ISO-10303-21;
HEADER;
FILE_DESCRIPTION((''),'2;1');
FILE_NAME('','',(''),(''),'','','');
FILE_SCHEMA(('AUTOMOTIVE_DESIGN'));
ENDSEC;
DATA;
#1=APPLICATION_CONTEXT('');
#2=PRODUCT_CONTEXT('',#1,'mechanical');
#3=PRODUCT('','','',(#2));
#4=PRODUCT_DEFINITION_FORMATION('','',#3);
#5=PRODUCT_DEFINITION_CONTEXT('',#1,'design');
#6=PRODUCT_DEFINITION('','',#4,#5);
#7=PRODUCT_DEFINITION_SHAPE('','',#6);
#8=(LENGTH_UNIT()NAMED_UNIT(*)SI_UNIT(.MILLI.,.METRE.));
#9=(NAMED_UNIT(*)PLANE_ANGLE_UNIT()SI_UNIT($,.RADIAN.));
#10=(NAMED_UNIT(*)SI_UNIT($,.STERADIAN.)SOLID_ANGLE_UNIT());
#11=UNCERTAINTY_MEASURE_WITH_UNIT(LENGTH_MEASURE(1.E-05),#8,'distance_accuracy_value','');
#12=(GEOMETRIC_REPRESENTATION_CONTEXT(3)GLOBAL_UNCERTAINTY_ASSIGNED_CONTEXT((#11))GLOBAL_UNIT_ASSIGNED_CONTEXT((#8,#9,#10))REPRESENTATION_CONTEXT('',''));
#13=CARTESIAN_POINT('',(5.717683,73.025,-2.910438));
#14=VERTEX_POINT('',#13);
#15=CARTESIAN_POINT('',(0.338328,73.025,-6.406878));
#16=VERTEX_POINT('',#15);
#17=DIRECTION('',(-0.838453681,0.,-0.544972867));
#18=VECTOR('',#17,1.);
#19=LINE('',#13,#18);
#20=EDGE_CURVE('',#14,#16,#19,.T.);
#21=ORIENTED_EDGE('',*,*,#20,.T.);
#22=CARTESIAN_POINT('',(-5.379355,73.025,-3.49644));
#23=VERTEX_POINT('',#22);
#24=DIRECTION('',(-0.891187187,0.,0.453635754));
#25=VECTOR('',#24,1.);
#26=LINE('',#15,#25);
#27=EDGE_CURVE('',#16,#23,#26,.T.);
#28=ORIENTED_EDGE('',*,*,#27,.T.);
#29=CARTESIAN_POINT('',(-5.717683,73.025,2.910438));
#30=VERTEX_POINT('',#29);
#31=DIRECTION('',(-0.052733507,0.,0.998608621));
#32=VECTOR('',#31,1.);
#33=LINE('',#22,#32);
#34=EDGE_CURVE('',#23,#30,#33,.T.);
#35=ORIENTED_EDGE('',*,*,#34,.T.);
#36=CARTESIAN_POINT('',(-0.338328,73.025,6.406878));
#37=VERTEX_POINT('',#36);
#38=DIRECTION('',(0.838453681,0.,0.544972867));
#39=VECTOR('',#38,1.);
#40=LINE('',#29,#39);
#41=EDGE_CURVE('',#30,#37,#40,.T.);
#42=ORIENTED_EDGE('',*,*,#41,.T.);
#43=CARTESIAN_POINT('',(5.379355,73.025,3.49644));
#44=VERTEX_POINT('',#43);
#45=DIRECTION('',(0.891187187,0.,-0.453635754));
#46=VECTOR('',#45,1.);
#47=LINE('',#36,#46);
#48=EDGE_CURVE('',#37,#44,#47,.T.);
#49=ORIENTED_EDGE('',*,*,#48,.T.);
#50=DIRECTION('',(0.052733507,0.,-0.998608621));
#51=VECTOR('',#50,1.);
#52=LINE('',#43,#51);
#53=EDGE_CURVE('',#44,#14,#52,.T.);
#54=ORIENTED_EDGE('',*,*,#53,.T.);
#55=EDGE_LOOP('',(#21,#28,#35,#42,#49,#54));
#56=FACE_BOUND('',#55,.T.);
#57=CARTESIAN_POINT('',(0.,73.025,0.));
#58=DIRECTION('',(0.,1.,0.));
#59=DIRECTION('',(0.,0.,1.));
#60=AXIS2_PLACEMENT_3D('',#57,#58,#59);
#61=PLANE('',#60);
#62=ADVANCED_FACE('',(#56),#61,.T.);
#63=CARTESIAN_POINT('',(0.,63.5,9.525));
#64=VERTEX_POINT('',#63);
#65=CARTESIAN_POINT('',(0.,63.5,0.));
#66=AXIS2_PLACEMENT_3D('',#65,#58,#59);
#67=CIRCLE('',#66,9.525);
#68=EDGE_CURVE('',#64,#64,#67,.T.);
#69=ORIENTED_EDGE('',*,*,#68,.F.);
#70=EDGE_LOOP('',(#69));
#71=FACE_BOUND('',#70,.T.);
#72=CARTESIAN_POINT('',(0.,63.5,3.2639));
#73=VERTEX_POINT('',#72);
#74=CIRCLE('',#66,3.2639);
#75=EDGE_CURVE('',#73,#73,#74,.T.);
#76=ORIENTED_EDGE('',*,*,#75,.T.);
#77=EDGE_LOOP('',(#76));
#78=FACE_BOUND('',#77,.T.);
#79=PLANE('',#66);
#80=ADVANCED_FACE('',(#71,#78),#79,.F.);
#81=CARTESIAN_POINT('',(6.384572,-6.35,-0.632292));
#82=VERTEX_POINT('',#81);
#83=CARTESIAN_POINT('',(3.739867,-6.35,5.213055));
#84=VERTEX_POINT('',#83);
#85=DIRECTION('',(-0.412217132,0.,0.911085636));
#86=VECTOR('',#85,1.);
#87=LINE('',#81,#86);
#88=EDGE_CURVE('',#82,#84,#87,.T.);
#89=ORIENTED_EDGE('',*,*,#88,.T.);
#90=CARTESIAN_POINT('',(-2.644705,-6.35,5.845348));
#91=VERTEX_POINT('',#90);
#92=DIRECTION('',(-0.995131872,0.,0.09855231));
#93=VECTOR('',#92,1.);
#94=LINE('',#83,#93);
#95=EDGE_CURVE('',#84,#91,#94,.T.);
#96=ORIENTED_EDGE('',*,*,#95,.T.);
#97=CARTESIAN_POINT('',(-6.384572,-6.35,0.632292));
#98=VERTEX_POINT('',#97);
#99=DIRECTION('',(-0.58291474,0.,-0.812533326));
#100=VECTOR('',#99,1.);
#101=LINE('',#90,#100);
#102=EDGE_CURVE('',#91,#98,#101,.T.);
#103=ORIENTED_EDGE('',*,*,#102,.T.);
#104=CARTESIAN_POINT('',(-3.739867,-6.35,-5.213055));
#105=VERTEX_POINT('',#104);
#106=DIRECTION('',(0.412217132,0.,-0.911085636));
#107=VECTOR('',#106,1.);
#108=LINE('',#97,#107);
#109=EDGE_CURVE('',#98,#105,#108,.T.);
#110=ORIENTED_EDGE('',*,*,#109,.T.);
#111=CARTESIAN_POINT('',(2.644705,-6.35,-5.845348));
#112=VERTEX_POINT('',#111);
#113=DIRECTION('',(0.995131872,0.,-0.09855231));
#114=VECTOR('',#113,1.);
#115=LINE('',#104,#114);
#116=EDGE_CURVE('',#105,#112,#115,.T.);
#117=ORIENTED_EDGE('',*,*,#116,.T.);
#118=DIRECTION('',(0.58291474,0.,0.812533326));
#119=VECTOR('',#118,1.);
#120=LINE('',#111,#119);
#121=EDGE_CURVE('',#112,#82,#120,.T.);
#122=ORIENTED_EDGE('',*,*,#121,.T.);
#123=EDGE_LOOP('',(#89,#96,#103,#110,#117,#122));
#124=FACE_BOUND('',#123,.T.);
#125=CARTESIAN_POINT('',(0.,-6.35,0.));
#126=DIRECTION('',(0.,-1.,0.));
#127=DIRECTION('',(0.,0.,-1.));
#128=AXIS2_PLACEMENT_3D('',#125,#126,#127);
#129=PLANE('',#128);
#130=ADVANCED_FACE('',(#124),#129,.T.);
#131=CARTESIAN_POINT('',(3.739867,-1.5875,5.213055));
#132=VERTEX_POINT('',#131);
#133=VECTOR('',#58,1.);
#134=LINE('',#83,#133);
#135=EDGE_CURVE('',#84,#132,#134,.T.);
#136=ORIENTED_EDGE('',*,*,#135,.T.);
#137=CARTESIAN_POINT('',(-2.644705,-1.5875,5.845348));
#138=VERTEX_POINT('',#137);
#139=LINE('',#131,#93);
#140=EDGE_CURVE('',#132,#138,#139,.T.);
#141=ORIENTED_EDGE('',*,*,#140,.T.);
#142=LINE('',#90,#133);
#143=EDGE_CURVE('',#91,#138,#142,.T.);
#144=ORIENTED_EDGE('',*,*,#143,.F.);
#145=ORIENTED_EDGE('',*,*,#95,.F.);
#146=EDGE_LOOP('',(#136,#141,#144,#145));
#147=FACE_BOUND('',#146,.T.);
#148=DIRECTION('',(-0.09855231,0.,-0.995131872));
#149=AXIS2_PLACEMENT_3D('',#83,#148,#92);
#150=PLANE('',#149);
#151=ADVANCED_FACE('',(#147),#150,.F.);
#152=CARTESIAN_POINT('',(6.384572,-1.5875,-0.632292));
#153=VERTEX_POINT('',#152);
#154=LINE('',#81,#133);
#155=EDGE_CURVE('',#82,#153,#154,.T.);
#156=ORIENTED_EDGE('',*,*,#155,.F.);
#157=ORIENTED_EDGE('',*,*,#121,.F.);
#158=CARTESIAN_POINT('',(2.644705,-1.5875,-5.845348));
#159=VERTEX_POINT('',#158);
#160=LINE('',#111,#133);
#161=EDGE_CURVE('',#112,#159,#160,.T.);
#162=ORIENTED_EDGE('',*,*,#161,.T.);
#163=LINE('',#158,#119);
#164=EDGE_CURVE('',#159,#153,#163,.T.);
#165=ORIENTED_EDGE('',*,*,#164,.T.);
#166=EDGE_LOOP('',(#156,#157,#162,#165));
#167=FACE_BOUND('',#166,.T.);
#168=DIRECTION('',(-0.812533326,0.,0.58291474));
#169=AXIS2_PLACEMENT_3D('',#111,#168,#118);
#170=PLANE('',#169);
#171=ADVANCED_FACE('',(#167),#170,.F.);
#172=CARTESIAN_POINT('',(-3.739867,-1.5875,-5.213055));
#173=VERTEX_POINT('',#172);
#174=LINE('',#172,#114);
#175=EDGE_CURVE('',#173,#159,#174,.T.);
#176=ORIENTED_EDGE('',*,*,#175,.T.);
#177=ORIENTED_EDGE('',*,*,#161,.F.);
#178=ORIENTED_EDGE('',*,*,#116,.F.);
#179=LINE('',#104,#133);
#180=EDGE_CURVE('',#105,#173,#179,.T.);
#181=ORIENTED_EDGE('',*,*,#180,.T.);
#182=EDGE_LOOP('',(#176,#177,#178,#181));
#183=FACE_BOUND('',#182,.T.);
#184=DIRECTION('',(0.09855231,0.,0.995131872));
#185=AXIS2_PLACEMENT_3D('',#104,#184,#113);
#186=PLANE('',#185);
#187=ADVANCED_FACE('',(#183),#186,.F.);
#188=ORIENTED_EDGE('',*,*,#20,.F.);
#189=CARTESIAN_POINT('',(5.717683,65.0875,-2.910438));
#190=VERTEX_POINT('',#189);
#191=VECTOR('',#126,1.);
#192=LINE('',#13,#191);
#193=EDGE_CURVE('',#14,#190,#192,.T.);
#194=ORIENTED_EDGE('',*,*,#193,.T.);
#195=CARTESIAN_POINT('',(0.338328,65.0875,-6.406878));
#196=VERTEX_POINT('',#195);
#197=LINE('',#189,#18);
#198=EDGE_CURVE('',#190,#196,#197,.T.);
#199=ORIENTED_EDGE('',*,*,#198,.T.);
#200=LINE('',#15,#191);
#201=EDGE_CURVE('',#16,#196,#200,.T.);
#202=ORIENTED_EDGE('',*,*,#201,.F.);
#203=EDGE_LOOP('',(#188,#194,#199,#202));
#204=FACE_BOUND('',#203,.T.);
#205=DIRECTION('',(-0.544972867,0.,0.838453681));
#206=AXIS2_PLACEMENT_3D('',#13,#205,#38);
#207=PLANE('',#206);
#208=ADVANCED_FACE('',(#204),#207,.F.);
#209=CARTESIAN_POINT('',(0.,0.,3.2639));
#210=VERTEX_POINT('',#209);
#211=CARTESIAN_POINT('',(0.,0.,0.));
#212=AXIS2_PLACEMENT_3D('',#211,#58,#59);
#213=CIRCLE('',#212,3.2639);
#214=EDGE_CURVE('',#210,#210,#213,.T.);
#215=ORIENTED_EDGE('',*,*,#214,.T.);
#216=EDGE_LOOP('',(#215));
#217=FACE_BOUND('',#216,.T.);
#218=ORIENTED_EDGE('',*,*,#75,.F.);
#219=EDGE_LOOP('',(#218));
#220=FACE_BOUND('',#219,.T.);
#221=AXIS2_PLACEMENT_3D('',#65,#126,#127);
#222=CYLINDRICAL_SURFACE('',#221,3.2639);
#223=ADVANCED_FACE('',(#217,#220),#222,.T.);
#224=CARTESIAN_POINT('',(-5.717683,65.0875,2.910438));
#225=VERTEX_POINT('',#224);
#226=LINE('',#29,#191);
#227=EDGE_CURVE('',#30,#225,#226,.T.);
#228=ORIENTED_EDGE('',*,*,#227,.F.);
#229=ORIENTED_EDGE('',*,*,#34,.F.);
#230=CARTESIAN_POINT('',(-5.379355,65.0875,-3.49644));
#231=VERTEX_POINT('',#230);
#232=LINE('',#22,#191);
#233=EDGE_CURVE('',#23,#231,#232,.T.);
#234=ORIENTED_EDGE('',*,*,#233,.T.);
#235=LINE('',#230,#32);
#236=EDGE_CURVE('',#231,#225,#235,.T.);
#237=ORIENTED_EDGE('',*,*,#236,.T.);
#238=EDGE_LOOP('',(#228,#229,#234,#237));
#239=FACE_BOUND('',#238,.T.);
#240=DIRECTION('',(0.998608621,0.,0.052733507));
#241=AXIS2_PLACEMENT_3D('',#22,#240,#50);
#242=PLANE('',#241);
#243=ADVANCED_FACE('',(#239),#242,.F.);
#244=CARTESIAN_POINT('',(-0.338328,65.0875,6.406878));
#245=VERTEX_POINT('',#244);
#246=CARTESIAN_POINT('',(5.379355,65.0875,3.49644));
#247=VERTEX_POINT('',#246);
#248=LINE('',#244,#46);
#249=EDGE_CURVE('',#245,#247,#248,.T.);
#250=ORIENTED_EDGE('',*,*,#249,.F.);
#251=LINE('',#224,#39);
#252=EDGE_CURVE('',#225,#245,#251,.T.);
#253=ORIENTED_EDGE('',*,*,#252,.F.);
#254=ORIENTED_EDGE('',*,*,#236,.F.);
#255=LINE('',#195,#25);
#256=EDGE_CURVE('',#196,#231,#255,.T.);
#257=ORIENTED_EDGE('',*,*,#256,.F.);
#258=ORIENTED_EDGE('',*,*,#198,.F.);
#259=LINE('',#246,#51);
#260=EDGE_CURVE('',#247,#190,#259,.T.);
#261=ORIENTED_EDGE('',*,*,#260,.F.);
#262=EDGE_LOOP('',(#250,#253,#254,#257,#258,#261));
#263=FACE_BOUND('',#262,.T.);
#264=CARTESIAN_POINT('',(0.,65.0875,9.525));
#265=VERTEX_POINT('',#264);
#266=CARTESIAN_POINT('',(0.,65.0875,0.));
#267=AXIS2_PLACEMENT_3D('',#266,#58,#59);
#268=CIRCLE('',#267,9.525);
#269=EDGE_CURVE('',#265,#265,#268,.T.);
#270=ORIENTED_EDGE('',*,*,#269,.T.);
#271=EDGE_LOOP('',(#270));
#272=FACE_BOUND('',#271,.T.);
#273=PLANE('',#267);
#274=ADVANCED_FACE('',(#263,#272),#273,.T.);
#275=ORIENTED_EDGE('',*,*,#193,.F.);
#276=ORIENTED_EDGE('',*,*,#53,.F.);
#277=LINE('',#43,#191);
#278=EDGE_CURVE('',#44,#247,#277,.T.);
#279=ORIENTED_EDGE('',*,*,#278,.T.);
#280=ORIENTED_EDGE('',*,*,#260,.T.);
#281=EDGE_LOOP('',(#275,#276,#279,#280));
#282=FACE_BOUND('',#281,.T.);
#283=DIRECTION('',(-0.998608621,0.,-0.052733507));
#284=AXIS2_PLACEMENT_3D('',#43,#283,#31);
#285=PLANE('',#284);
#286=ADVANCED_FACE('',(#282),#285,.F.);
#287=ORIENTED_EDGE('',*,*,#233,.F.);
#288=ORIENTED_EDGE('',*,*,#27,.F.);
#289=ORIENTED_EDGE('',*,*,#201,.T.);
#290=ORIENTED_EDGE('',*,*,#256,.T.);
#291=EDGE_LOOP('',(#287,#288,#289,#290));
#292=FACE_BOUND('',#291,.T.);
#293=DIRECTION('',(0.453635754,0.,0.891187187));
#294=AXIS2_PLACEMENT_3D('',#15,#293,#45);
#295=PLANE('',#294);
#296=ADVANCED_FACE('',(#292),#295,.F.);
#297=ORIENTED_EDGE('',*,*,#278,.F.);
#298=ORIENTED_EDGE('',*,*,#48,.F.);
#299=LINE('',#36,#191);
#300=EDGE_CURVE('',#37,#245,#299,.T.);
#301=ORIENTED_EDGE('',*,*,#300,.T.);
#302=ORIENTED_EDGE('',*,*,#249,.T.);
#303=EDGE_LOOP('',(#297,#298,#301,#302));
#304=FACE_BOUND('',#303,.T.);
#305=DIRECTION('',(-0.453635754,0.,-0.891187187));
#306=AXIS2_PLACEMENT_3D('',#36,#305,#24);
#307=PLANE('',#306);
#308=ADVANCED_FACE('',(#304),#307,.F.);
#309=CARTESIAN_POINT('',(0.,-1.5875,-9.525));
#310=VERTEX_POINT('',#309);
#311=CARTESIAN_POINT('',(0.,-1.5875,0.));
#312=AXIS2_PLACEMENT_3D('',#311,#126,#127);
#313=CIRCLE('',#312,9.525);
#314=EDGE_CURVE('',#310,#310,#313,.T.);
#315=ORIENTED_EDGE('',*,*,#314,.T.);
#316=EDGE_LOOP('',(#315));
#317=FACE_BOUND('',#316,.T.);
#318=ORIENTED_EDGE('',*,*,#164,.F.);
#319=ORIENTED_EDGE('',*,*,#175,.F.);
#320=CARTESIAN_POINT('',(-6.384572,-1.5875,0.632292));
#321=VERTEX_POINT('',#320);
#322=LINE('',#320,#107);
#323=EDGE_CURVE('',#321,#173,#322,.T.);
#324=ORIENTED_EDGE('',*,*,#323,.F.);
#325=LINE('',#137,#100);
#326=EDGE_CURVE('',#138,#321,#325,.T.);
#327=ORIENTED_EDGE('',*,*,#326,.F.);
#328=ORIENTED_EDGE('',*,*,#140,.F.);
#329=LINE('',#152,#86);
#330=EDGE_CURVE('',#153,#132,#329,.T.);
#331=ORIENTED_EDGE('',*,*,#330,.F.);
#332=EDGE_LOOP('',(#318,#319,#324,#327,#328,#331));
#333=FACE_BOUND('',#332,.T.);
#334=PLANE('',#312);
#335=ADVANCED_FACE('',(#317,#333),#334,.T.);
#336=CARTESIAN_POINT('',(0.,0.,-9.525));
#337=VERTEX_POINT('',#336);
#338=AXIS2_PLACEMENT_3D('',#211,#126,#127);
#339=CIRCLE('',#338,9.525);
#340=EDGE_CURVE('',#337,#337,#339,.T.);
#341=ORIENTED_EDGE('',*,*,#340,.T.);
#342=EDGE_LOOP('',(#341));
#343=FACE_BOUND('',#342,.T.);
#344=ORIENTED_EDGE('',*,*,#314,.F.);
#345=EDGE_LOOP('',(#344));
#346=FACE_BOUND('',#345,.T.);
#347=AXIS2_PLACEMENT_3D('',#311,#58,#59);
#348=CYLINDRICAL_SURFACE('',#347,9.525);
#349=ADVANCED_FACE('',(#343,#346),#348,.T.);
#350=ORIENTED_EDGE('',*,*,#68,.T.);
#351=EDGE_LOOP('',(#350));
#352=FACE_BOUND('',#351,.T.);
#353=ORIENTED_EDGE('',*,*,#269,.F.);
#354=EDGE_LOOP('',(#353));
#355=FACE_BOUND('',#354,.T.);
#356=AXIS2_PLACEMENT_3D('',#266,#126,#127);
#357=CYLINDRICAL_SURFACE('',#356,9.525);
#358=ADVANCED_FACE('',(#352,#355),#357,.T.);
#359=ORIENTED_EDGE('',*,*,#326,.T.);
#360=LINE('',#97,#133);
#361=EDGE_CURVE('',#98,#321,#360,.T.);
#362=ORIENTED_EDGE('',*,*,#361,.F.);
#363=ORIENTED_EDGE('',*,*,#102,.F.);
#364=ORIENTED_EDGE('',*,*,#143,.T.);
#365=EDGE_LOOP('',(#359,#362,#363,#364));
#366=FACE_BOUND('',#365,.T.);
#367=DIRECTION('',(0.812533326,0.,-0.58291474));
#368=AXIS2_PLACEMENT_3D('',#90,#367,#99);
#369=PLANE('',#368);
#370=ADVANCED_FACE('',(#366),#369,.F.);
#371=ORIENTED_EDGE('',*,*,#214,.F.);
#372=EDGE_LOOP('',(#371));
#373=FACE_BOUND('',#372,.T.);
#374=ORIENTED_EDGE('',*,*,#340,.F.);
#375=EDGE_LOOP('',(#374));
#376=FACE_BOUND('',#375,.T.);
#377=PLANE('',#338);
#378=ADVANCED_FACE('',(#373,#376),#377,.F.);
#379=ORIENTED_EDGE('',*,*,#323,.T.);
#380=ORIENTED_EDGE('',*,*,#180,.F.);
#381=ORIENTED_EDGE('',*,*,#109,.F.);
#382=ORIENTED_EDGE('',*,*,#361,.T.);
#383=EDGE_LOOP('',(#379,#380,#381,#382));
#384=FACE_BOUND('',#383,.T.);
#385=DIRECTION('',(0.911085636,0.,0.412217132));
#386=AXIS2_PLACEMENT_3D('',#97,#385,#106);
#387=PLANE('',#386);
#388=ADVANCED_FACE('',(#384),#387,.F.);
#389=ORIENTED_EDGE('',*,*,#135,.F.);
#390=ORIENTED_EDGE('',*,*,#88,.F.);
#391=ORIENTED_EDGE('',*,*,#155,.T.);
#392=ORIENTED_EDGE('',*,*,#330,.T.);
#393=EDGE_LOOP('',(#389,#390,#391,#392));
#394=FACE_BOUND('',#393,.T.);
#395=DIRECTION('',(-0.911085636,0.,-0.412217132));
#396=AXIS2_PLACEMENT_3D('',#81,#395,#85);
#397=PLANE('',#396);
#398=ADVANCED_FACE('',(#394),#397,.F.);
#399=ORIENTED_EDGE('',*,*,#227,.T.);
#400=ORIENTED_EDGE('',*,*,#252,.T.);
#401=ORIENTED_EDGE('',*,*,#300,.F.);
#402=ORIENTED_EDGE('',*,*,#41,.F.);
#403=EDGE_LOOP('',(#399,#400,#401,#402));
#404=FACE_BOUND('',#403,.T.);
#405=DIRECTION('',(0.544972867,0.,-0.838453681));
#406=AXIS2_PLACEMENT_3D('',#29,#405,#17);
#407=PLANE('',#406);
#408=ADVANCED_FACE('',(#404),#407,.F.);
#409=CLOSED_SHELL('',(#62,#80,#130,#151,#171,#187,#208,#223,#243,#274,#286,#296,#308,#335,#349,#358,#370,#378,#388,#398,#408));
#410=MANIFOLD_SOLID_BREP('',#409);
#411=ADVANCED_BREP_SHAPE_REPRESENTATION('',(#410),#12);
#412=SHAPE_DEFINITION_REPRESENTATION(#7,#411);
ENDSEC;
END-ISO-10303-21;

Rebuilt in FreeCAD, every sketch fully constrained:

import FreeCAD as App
import Part
import Sketcher
from FreeCAD import Vector
Q = App.Units.Quantity

doc = App.newDocument("Part")
body = doc.addObject("PartDesign::Body", "Body")

# Sketch on XZ plane
sketch1 = body.newObject("Sketcher::SketchObject", "Sketch")
sketch1.AttachmentSupport = (doc.getObject("XZ_Plane"), [""])
sketch1.MapMode = "FlatFace"
sketch1.addGeometry(Part.Circle(Vector(0, 0, 0), Vector(0, 0, 1), 3.3), False)
sketch1.addConstraint(Sketcher.Constraint("Coincident", 0, 3, -1, 1))
sketch1.addConstraint(Sketcher.Constraint("Diameter", 0, Q("0.257 in")))
pad1 = body.newObject("PartDesign::Pad", "Pad")
pad1.Profile = sketch1
pad1.Length = Q("2.5 in")
pad1.Reversed = True

# Sketch on XZ plane
sketch2 = body.newObject("Sketcher::SketchObject", "Sketch001")
sketch2.AttachmentSupport = (doc.getObject("XZ_Plane"), [""])
sketch2.MapMode = "FlatFace"
sketch2.AttachmentOffset = App.Placement(Vector(0, 0, -2.5 * 25.4), App.Rotation())
sketch2.addGeometry(Part.Circle(Vector(0, 0, 0), Vector(0, 0, 1), 10), False)
sketch2.addConstraint(Sketcher.Constraint("Coincident", 0, 3, -1, 1))
sketch2.addConstraint(Sketcher.Constraint("Diameter", 0, Q("0.75 in")))
pad2 = body.newObject("PartDesign::Pad", "Pad001")
pad2.Profile = sketch2
pad2.Length = Q("0.0625 in")
pad2.Reversed = True

# Sketch on XZ plane
sketch3 = body.newObject("Sketcher::SketchObject", "Sketch002")
sketch3.AttachmentSupport = (doc.getObject("XZ_Plane"), [""])
sketch3.MapMode = "FlatFace"
sketch3.AttachmentOffset = App.Placement(Vector(0, 0, 0.0625 * 25.4), App.Rotation())
sketch3.addGeometry(Part.Circle(Vector(0, 0, 0), Vector(0, 0, 1), 10), False)
sketch3.addConstraint(Sketcher.Constraint("Coincident", 0, 3, -1, 1))
sketch3.addConstraint(Sketcher.Constraint("Diameter", 0, Q("0.75 in")))
pad3 = body.newObject("PartDesign::Pad", "Pad002")
pad3.Profile = sketch3
pad3.Length = Q("0.0625 in")
pad3.Reversed = True

# Sketch on XZ plane
sketch4 = body.newObject("Sketcher::SketchObject", "Sketch003")
sketch4.AttachmentSupport = (doc.getObject("XZ_Plane"), [""])
sketch4.MapMode = "FlatFace"
sketch4.AttachmentOffset = App.Placement(Vector(0, 0, 0.0625 * 25.4), App.Rotation())
sketch4.addGeometry(Part.LineSegment(Vector(4, 5, 0), Vector(-3, 6, 0)), False)
sketch4.addGeometry(Part.LineSegment(Vector(-3, 6, 0), Vector(-6, 1, 0)), False)
sketch4.addGeometry(Part.LineSegment(Vector(-6, 1, 0), Vector(-4, -5, 0)), False)
sketch4.addGeometry(Part.LineSegment(Vector(-4, -5, 0), Vector(3, -6, 0)), False)
sketch4.addGeometry(Part.LineSegment(Vector(3, -6, 0), Vector(6, -1, 0)), False)
sketch4.addGeometry(Part.LineSegment(Vector(6, -1, 0), Vector(4, 5, 0)), False)
sketch4.addConstraint(Sketcher.Constraint("Coincident", 0, 2, 1, 1))
sketch4.addConstraint(Sketcher.Constraint("Coincident", 1, 2, 2, 1))
sketch4.addConstraint(Sketcher.Constraint("Coincident", 2, 2, 3, 1))
sketch4.addConstraint(Sketcher.Constraint("Coincident", 3, 2, 4, 1))
sketch4.addConstraint(Sketcher.Constraint("Coincident", 4, 2, 5, 1))
sketch4.addConstraint(Sketcher.Constraint("Coincident", 5, 2, 0, 1))
sketch4.addConstraint(Sketcher.Constraint("Symmetric", 0, 2, 3, 2, -1, 1))
sketch4.addConstraint(Sketcher.Constraint("Symmetric", 1, 2, 4, 2, -1, 1))
sketch4.addConstraint(Sketcher.Constraint("Symmetric", 2, 2, 5, 2, -1, 1))
sketch4.addConstraint(Sketcher.Constraint("Equal", 0, 1))
sketch4.addConstraint(Sketcher.Constraint("Equal", 1, 2))
sketch4.addConstraint(Sketcher.Constraint("DistanceX", 2, 2, 4, 2, Q("0.3986 in")))
sketch4.addConstraint(Sketcher.Constraint("DistanceX", 1, 2, -1, 1, Q("6.384572 mm")))
sketch4.addConstraint(Sketcher.Constraint("DistanceX", 2, 2, 3, 2, Q("6.384572 mm")))
sketch4.addConstraint(Sketcher.Constraint("DistanceY", 3, 2, 1, 2, Q("6.47764 mm")))
pad4 = body.newObject("PartDesign::Pad", "Pad003")
pad4.Profile = sketch4
pad4.Length = Q("0.1875 in")

# Sketch on XZ plane
sketch5 = body.newObject("Sketcher::SketchObject", "Sketch004")
sketch5.AttachmentSupport = (doc.getObject("XZ_Plane"), [""])
sketch5.MapMode = "FlatFace"
sketch5.AttachmentOffset = App.Placement(Vector(0, 0, -2.5625 * 25.4), App.Rotation())
sketch5.addGeometry(Part.LineSegment(Vector(5, 3, 0), Vector(6, -3, 0)), False)
sketch5.addGeometry(Part.LineSegment(Vector(6, -3, 0), Vector(0, -6, 0)), False)
sketch5.addGeometry(Part.LineSegment(Vector(0, -6, 0), Vector(-5, -3, 0)), False)
sketch5.addGeometry(Part.LineSegment(Vector(-5, -3, 0), Vector(-6, 3, 0)), False)
sketch5.addGeometry(Part.LineSegment(Vector(-6, 3, 0), Vector(0, 6, 0)), False)
sketch5.addGeometry(Part.LineSegment(Vector(0, 6, 0), Vector(5, 3, 0)), False)
sketch5.addConstraint(Sketcher.Constraint("Coincident", 0, 2, 1, 1))
sketch5.addConstraint(Sketcher.Constraint("Coincident", 1, 2, 2, 1))
sketch5.addConstraint(Sketcher.Constraint("Coincident", 2, 2, 3, 1))
sketch5.addConstraint(Sketcher.Constraint("Coincident", 3, 2, 4, 1))
sketch5.addConstraint(Sketcher.Constraint("Coincident", 4, 2, 5, 1))
sketch5.addConstraint(Sketcher.Constraint("Coincident", 5, 2, 0, 1))
sketch5.addConstraint(Sketcher.Constraint("Symmetric", 0, 2, 3, 2, -1, 1))
sketch5.addConstraint(Sketcher.Constraint("Symmetric", 1, 2, 4, 2, -1, 1))
sketch5.addConstraint(Sketcher.Constraint("Symmetric", 2, 2, 5, 2, -1, 1))
sketch5.addConstraint(Sketcher.Constraint("Equal", 0, 1))
sketch5.addConstraint(Sketcher.Constraint("Equal", 1, 2))
sketch5.addConstraint(Sketcher.Constraint("DistanceY", 2, 2, 0, 2, Q("0.586001 mm")))
sketch5.addConstraint(Sketcher.Constraint("DistanceY", 0, 2, -1, 1, Q("2.910438 mm")))
sketch5.addConstraint(Sketcher.Constraint("DistanceY", 1, 2, -1, 1, Q("6.406878 mm")))
sketch5.addConstraint(Sketcher.Constraint("DistanceX", 2, 2, 0, 2, Q("11.097038 mm")))
pad5 = body.newObject("PartDesign::Pad", "Pad004")
pad5.Profile = sketch5
pad5.Length = Q("0.3125 in")
pad5.Reversed = True

doc.recompute()
